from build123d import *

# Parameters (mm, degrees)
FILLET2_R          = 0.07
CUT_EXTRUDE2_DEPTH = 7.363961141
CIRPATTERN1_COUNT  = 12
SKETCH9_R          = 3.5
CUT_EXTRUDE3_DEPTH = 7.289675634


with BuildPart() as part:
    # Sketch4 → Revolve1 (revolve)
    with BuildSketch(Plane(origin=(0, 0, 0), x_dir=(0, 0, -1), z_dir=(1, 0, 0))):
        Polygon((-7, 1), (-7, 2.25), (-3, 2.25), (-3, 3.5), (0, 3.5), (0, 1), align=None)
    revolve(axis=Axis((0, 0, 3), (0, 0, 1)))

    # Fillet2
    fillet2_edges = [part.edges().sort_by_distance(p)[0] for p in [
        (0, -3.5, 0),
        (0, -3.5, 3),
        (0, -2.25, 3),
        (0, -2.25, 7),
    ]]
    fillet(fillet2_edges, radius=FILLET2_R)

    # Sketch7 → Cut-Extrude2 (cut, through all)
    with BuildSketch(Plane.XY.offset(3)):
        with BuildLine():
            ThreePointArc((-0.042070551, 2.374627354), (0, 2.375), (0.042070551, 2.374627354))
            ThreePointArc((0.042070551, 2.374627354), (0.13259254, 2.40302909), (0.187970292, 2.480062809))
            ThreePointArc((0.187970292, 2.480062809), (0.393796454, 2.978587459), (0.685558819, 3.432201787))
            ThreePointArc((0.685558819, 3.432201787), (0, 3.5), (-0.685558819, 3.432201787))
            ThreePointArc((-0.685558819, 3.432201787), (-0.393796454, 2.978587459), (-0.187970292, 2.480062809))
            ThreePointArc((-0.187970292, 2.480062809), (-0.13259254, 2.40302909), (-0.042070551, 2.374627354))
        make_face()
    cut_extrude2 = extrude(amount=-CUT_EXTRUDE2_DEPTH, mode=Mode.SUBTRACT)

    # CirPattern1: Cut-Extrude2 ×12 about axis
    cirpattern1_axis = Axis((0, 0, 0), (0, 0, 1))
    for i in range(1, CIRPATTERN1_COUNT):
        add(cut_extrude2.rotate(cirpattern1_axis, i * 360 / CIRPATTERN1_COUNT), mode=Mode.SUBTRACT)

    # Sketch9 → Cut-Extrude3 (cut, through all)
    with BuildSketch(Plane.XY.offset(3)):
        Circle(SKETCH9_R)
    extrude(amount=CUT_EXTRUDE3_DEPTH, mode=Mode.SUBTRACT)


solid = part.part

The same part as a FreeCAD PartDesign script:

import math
import FreeCAD as App
import Part
import Sketcher


def edges_at(feature, points):
    """Names of the edges that pass closest to the given points."""
    edges = feature.Shape.Edges
    near = lambda p: min(range(len(edges)), key=lambda i: edges[i].distToShape(Part.Vertex(*p))[0])
    return sorted({f"Edge{near(p) + 1}" for p in points})

doc = App.newDocument("Part")
params = doc.addObject("Spreadsheet::Sheet", "Params")
for row, (alias, value) in enumerate([
    ("sketch1_height", "7 mm"),
    ("sketch1_height2", "3 mm"),
    ("sketch1_width", "2.5 mm"),
    ("revolution_angle", "360 deg"),
    ("fillet_radius", "0.07 mm"),
    ("sketch2_radius", "3 mm"),
    ("sketch2_radius2", "3.5 mm"),
    ("sketch3_diameter", "7 mm"),
], start=1):
    params.set(f"A{row}", alias)
    params.set(f"B{row}", "=" + value)
    params.setAlias(f"B{row}", alias)

body = doc.addObject("PartDesign::Body", "Body")

# Sketch on YZ plane
sketch1 = doc.addObject("Sketcher::SketchObject", "Sketch")
body.addObject(sketch1)
sketch1.AttachmentSupport = (doc.YZ_Plane, [""])
sketch1.MapMode = "FlatFace"
sketch1.addGeometry([
    Part.LineSegment(App.Vector(2.2, 7, 0), App.Vector(1, 7, 0)),  # 0
    Part.LineSegment(App.Vector(1, 7, 0), App.Vector(1, 0, 0)),  # 1
    Part.LineSegment(App.Vector(1, 0, 0), App.Vector(3.5, 0, 0)),  # 2
    Part.LineSegment(App.Vector(3.5, 0, 0), App.Vector(3.5, 3, 0)),  # 3
    Part.LineSegment(App.Vector(3.5, 3, 0), App.Vector(2.2, 3, 0)),  # 4
    Part.LineSegment(App.Vector(2.2, 3, 0), App.Vector(2.2, 7, 0)),  # 5
], False)
sketch1.addConstraint([
    Sketcher.Constraint("Coincident", 0, 2, 1, 1),
    Sketcher.Constraint("Coincident", 1, 2, 2, 1),
    Sketcher.Constraint("Coincident", 2, 2, 3, 1),
    Sketcher.Constraint("Coincident", 3, 2, 4, 1),
    Sketcher.Constraint("Coincident", 4, 2, 5, 1),
    Sketcher.Constraint("Coincident", 5, 2, 0, 1),
    Sketcher.Constraint("Horizontal", 0),
    Sketcher.Constraint("Vertical", 1),
    Sketcher.Constraint("Horizontal", 2),
    Sketcher.Constraint("Vertical", 3),
    Sketcher.Constraint("Horizontal", 4),
    Sketcher.Constraint("Vertical", 5),
    Sketcher.Constraint("PointOnObject", 1, 2, -1),
    Sketcher.Constraint("Equal", 0, 4),
    Sketcher.Constraint("DistanceY", 1, 2, 1, 1, 7.0),
    Sketcher.Constraint("DistanceY", 3, 1, 3, 2, 3.0),
    Sketcher.Constraint("DistanceX", 2, 1, 2, 2, 2.5),
    Sketcher.Constraint("DistanceX", -1, 1, 0, 2, 1.0),
])
sketch1.setExpression("Constraints[14]", "Params.sketch1_height")
sketch1.setExpression("Constraints[15]", "Params.sketch1_height2")
sketch1.setExpression("Constraints[16]", "Params.sketch1_width")
revolution = doc.addObject("PartDesign::Revolution", "Revolution")
body.addObject(revolution)
revolution.Profile = sketch1
revolution.ReferenceAxis = (sketch1, ["V_Axis"])
revolution.setExpression("Angle", "Params.revolution_angle")
doc.recompute()

fillet = doc.addObject("PartDesign::Fillet", "Fillet")
body.addObject(fillet)
fillet.Base = (revolution, edges_at(revolution, [
    (0, -3.5, 0),
    (0, -3.5, 3),
    (0, -2.25, 3),
    (0, -2.25, 7),
]))
fillet.setExpression("Radius", "Params.fillet_radius")

# Sketch on XY plane
sketch2 = doc.addObject("Sketcher::SketchObject", "Sketch001")
body.addObject(sketch2)
sketch2.AttachmentSupport = (doc.XY_Plane, [""])
sketch2.MapMode = "FlatFace"
sketch2.AttachmentOffset = App.Placement(App.Vector(0, 0, 3), App.Rotation())
sketch2.addGeometry([
    Part.ArcOfCircle(Part.Circle(App.Vector(0, 0, 0), App.Vector(0, 0, 1), 2.38), math.radians(88.99), math.radians(91.01)),  # 0
    Part.ArcOfCircle(Part.Circle(App.Vector(0.04, 2.52, 0), App.Vector(0, 0, 1), 0.15), math.radians(-91), math.radians(-17)),  # 1
    Part.ArcOfCircle(Part.Circle(App.Vector(3.05, 1.59, 0), App.Vector(0, 0, 1), 3), math.radians(142), math.radians(163)),  # 2
    Part.ArcOfCircle(Part.Circle(App.Vector(0, 0, 0), App.Vector(0, 0, 1), 3.5), math.radians(79), math.radians(101)),  # 3
    Part.ArcOfCircle(Part.Circle(App.Vector(-3.05, 1.59, 0), App.Vector(0, 0, 1), 3), math.radians(17), math.radians(38)),  # 4
    Part.ArcOfCircle(Part.Circle(App.Vector(-0.04, 2.52, 0), App.Vector(0, 0, 1), 0.15), math.radians(-163), math.radians(-89)),  # 5
], False)
sketch2.addConstraint([
    Sketcher.Constraint("Tangent", 0, 1, 1, 1),
    Sketcher.Constraint("Tangent", 1, 2, 2, 2),
    Sketcher.Constraint("Coincident", 2, 1, 3, 1),
    Sketcher.Constraint("Coincident", 3, 2, 4, 2),
    Sketcher.Constraint("Tangent", 4, 1, 5, 1),
    Sketcher.Constraint("Tangent", 5, 2, 0, 2),
    Sketcher.Constraint("Coincident", 0, 3, -1, 1),
    Sketcher.Constraint("Coincident", 3, 3, -1, 1),
    Sketcher.Constraint("Equal", 2, 4),
    Sketcher.Constraint("Equal", 1, 5),
    Sketcher.Constraint("Symmetric", 2, 3, 4, 3, -2),
    Sketcher.Constraint("Radius", 2, 3.0),
    Sketcher.Constraint("Radius", 3, 3.5),
    Sketcher.Constraint("Radius", 1, 0.150011),
    Sketcher.Constraint("Radius", 0, 2.375002),
    Sketcher.Constraint("DistanceY", -1, 1, 2, 1, 3.432202),
    Sketcher.Constraint("DistanceX", 5, 3, 0, 1, 0.086798),
])
sketch2.setExpression("Constraints[11]", "Params.sketch2_radius")
sketch2.setExpression("Constraints[12]", "Params.sketch2_radius2")
pocket1 = doc.addObject("PartDesign::Pocket", "Pocket")
body.addObject(pocket1)
pocket1.Profile = sketch2
pocket1.Type = "ThroughAll"
doc.recompute()

polarpattern = doc.addObject("PartDesign::PolarPattern", "PolarPattern")
body.addObject(polarpattern)
polarpattern.Originals = [pocket1]
polarpattern.Axis = (doc.Z_Axis, [""])
polarpattern.Angle = 360
polarpattern.Occurrences = 12
body.Tip = polarpattern

# Sketch on XY plane
sketch3 = doc.addObject("Sketcher::SketchObject", "Sketch002")
body.addObject(sketch3)
sketch3.AttachmentSupport = (doc.XY_Plane, [""])
sketch3.MapMode = "FlatFace"
sketch3.AttachmentOffset = App.Placement(App.Vector(0, 0, 3), App.Rotation())
sketch3.addGeometry(Part.Circle(App.Vector(0, 0, 0), App.Vector(0, 0, 1), 3.5), False)
sketch3.addConstraint([
    Sketcher.Constraint("Coincident", 0, 3, -1, 1),
    Sketcher.Constraint("Diameter", 0, 7.0),
])
sketch3.setExpression("Constraints[1]", "Params.sketch3_diameter")
pocket2 = doc.addObject("PartDesign::Pocket", "Pocket001")
body.addObject(pocket2)
pocket2.Profile = sketch3
pocket2.Type = "ThroughAll"
pocket2.Reversed = True

doc.recompute()
